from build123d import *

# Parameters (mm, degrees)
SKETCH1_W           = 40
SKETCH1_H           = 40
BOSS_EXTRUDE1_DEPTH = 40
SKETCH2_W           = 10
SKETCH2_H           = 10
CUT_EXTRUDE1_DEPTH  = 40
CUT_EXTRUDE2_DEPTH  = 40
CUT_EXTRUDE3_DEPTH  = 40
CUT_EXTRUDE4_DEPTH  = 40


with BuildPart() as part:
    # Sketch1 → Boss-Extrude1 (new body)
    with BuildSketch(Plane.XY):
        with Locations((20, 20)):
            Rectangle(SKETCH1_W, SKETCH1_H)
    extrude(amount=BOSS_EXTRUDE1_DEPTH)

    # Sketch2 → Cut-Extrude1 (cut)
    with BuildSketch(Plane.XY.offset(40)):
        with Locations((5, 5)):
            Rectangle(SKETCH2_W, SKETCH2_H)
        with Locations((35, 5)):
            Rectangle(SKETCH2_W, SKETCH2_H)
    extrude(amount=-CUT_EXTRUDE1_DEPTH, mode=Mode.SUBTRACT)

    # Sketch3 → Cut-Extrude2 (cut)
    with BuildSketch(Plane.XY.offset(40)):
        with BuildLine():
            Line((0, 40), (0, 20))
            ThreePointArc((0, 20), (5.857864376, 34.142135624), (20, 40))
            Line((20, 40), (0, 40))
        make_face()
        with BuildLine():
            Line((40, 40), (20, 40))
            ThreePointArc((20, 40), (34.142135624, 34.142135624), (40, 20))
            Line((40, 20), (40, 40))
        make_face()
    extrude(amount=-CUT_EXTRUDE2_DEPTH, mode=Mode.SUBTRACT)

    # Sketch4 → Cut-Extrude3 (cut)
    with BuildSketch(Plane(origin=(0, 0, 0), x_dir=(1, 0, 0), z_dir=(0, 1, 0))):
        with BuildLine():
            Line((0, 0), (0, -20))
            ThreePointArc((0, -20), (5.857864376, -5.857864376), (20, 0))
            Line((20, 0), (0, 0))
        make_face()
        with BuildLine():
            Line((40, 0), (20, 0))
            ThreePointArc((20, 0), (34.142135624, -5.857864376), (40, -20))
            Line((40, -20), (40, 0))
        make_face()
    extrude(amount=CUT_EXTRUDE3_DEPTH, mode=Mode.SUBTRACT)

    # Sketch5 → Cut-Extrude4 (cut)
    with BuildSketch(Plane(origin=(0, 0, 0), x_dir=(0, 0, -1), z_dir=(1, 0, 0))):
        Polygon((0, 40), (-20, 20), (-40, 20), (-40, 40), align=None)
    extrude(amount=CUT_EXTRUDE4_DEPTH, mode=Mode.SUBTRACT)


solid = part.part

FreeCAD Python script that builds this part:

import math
import FreeCAD as App
import Part
import Sketcher


def add_polygon(sketch, points):
    """Adds a closed chain of lines whose ends are joined by coincident constraints."""
    first, n = sketch.GeometryCount, len(points)
    for a, b in zip(points, points[1:] + points[:1]):
        sketch.addGeometry(Part.LineSegment(App.Vector(*a, 0), App.Vector(*b, 0)), False)
    for i in range(n):
        sketch.addConstraint(Sketcher.Constraint("Coincident", first + i, 2, first + (i + 1) % n, 1))

doc = App.newDocument("Part")
body = doc.addObject("PartDesign::Body", "Body")

sketch1 = doc.addObject("Sketcher::SketchObject", "Sketch")
body.addObject(sketch1)
sketch1.AttachmentSupport = (doc.XY_Plane, [""])
sketch1.MapMode = "FlatFace"
add_polygon(sketch1, [(0, 40), (0, 0), (40, 0), (40, 40)])
sketch1.addConstraint([
    Sketcher.Constraint("Vertical", 0),
    Sketcher.Constraint("Horizontal", 1),
    Sketcher.Constraint("Vertical", 2),
    Sketcher.Constraint("Horizontal", 3),
    Sketcher.Constraint("Coincident", 0, 2, -1, 1),
    Sketcher.Constraint("Equal", 3, 0),
    Sketcher.Constraint("DistanceX", 1, 1, 1, 2, 40.0),
])
pad1 = doc.addObject("PartDesign::Pad", "Pad")
body.addObject(pad1)
pad1.Profile = sketch1
pad1.Length = 40

sketch2 = doc.addObject("Sketcher::SketchObject", "Sketch001")
body.addObject(sketch2)
sketch2.AttachmentSupport = (doc.XY_Plane, [""])
sketch2.MapMode = "FlatFace"
sketch2.AttachmentOffset = App.Placement(App.Vector(0, 0, 40), App.Rotation())
add_polygon(sketch2, [(0, 10), (0, 0), (10, 0), (10, 10)])
add_polygon(sketch2, [(30, 10), (30, 0), (40, 0), (40, 10)])
sketch2.addConstraint([
    Sketcher.Constraint("Vertical", 0),
    Sketcher.Constraint("Horizontal", 1),
    Sketcher.Constraint("Vertical", 2),
    Sketcher.Constraint("Horizontal", 3),
    Sketcher.Constraint("Vertical", 4),
    Sketcher.Constraint("Horizontal", 5),
    Sketcher.Constraint("Vertical", 6),
    Sketcher.Constraint("Horizontal", 7),
    Sketcher.Constraint("Coincident", 0, 2, -1, 1),
    Sketcher.Constraint("PointOnObject", 4, 2, -1),
    Sketcher.Constraint("Horizontal", 3, 2, 6, 2),
    Sketcher.Constraint("Equal", 3, 5),
    Sketcher.Constraint("Equal", 7, 0),
    Sketcher.Constraint("DistanceX", 1, 1, 1, 2, 10.0),
    Sketcher.Constraint("DistanceX", -1, 1, 4, 2, 30.0),
])
pocket1 = doc.addObject("PartDesign::Pocket", "Pocket")
body.addObject(pocket1)
pocket1.Profile = sketch2
pocket1.Length = 40

sketch3 = doc.addObject("Sketcher::SketchObject", "Sketch002")
body.addObject(sketch3)
sketch3.AttachmentSupport = (doc.XY_Plane, [""])
sketch3.MapMode = "FlatFace"
sketch3.AttachmentOffset = App.Placement(App.Vector(0, 0, 40), App.Rotation())
sketch3.addGeometry([
    Part.LineSegment(App.Vector(0, 40, 0), App.Vector(0, 20, 0)),
    Part.ArcOfCircle(Part.Circle(App.Vector(20, 20, 0), App.Vector(0, 0, 1), 20), math.radians(90), math.radians(180)),
    Part.LineSegment(App.Vector(20, 40, 0), App.Vector(0, 40, 0)),
    Part.LineSegment(App.Vector(40, 40, 0), App.Vector(20, 40, 0)),
    Part.ArcOfCircle(Part.Circle(App.Vector(20, 20, 0), App.Vector(0, 0, 1), 20), math.radians(0), math.radians(90)),
    Part.LineSegment(App.Vector(40, 20, 0), App.Vector(40, 40, 0)),
], False)
sketch3.addConstraint([
    Sketcher.Constraint("Tangent", 0, 2, 1, 2),
    Sketcher.Constraint("Tangent", 1, 1, 2, 1),
    Sketcher.Constraint("Coincident", 2, 2, 0, 1),
    Sketcher.Constraint("Tangent", 3, 2, 4, 2),
    Sketcher.Constraint("Tangent", 4, 1, 5, 1),
    Sketcher.Constraint("Coincident", 5, 2, 3, 1),
    Sketcher.Constraint("Vertical", 0),
    Sketcher.Constraint("Horizontal", 2),
    Sketcher.Constraint("Horizontal", 3),
    Sketcher.Constraint("Vertical", 5),
    Sketcher.Constraint("Coincident", 4, 3, 1, 3),
    Sketcher.Constraint("Equal", 1, 4),
    Sketcher.Constraint("PointOnObject", 0, 2, -2),
    Sketcher.Constraint("Radius", 1, 20.0),
    Sketcher.Constraint("DistanceY", -1, 1, 1, 3, 20.0),
])
pocket2 = doc.addObject("PartDesign::Pocket", "Pocket001")
body.addObject(pocket2)
pocket2.Profile = sketch3
pocket2.Length = 40

sketch4 = doc.addObject("Sketcher::SketchObject", "Sketch003")
body.addObject(sketch4)
sketch4.AttachmentSupport = (doc.XZ_Plane, [""])
sketch4.MapMode = "FlatFace"
sketch4.addGeometry([
    Part.LineSegment(App.Vector(0, 0, 0), App.Vector(0, 20, 0)),
    Part.ArcOfCircle(Part.Circle(App.Vector(20, 20, 0), App.Vector(0, 0, 1), 20), math.radians(180), math.radians(270)),
    Part.LineSegment(App.Vector(20, 0, 0), App.Vector(0, 0, 0)),
    Part.LineSegment(App.Vector(40, 0, 0), App.Vector(20, 0, 0)),
    Part.ArcOfCircle(Part.Circle(App.Vector(20, 20, 0), App.Vector(0, 0, 1), 20), math.radians(-90), math.radians(0)),
    Part.LineSegment(App.Vector(40, 20, 0), App.Vector(40, 0, 0)),
], False)
sketch4.addConstraint([
    Sketcher.Constraint("Tangent", 0, 2, 1, 1),
    Sketcher.Constraint("Tangent", 1, 2, 2, 1),
    Sketcher.Constraint("Coincident", 2, 2, 0, 1),
    Sketcher.Constraint("Tangent", 3, 2, 4, 1),
    Sketcher.Constraint("Tangent", 4, 2, 5, 1),
    Sketcher.Constraint("Coincident", 5, 2, 3, 1),
    Sketcher.Constraint("Vertical", 0),
    Sketcher.Constraint("Horizontal", 2),
    Sketcher.Constraint("Horizontal", 3),
    Sketcher.Constraint("Vertical", 5),
    Sketcher.Constraint("Coincident", 2, 2, -1, 1),
    Sketcher.Constraint("Coincident", 4, 3, 1, 3),
    Sketcher.Constraint("Equal", 1, 4),
    Sketcher.Constraint("Radius", 1, 20.0),
])
pocket3 = doc.addObject("PartDesign::Pocket", "Pocket002")
body.addObject(pocket3)
pocket3.Profile = sketch4
pocket3.Length = 40

sketch5 = doc.addObject("Sketcher::SketchObject", "Sketch004")
body.addObject(sketch5)
sketch5.AttachmentSupport = (doc.YZ_Plane, [""])
sketch5.MapMode = "FlatFace"
add_polygon(sketch5, [(20, 20), (40, 0), (40, 40), (20, 40)])
sketch5.addConstraint([
    Sketcher.Constraint("Vertical", 1),
    Sketcher.Constraint("Horizontal", 2),
    Sketcher.Constraint("Vertical", 3),
    Sketcher.Constraint("PointOnObject", 0, 2, -1),
    Sketcher.Constraint("Equal", 2, 3),
    Sketcher.Constraint("DistanceX", 2, 2, 2, 1, 20.0),
    Sketcher.Constraint("DistanceY", 1, 1, 1, 2, 40.0),
    Sketcher.Constraint("DistanceX", -1, 1, 0, 2, 40.0),
])
pocket4 = doc.addObject("PartDesign::Pocket", "Pocket003")
body.addObject(pocket4)
pocket4.Profile = sketch5
pocket4.Length = 40
pocket4.Reversed = True

doc.recompute()
